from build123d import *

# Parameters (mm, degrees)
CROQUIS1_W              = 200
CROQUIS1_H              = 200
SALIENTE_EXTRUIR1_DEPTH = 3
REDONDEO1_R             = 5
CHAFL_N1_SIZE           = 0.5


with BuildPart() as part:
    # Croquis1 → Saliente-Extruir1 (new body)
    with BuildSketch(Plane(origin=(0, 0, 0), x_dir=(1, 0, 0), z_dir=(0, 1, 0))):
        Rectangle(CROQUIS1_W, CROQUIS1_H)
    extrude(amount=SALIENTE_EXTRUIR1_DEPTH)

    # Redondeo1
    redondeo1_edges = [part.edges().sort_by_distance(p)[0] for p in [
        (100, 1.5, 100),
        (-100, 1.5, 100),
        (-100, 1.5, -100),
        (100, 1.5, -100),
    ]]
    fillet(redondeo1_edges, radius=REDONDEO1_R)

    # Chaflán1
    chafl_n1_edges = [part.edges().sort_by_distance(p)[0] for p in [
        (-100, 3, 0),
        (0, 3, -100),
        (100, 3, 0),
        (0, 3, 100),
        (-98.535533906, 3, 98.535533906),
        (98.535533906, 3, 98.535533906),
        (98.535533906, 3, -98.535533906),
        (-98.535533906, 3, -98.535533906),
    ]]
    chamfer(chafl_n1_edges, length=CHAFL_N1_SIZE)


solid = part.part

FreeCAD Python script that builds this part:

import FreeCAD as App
import Part
import Sketcher
from FreeCAD import Vector


def edges_at(feature, points):
    """Names of the edges that pass closest to the given points."""
    edges = feature.Shape.Edges
    near = lambda p: min(range(len(edges)), key=lambda i: edges[i].distToShape(Part.Vertex(*p))[0])
    return sorted({f"Edge{near(p) + 1}" for p in points})

doc = App.newDocument("Part")
body = doc.addObject("PartDesign::Body", "Body")

sketch1 = body.newObject("Sketcher::SketchObject", "Sketch")
sketch1.AttachmentSupport = (doc.getObject("XZ_Plane"), [""])
sketch1.MapMode = "FlatFace"
sketch1.addGeometry([
    Part.LineSegment(Vector(-100, -100, 0), Vector(-100, 100, 0)),
    Part.LineSegment(Vector(-100, 100, 0), Vector(100, 100, 0)),
    Part.LineSegment(Vector(100, 100, 0), Vector(100, -100, 0)),
    Part.LineSegment(Vector(100, -100, 0), Vector(-100, -100, 0)),
], False)
sketch1.addConstraint([
    Sketcher.Constraint("Coincident", 0, 2, 1, 1),
    Sketcher.Constraint("Coincident", 1, 2, 2, 1),
    Sketcher.Constraint("Coincident", 2, 2, 3, 1),
    Sketcher.Constraint("Coincident", 3, 2, 0, 1),
    Sketcher.Constraint("Vertical", 0),
    Sketcher.Constraint("Horizontal", 1),
    Sketcher.Constraint("Vertical", 2),
    Sketcher.Constraint("Horizontal", 3),
    Sketcher.Constraint("Symmetric", 0, 2, 2, 2, -1, 1),
    Sketcher.Constraint("Equal", 3, 0),
    Sketcher.Constraint("DistanceX", 1, 1, 1, 2, 200.0),
])
pad1 = body.newObject("PartDesign::Pad", "Pad")
pad1.Profile = sketch1
pad1.Length = 3
pad1.Reversed = True
doc.recompute()

fillet = body.newObject("PartDesign::Fillet", "Fillet")
fillet.Base = (pad1, edges_at(pad1, [
    (100, 1.5, 100),
    (-100, 1.5, 100),
    (-100, 1.5, -100),
    (100, 1.5, -100),
]))
fillet.Radius = 5
doc.recompute()

chamfer = body.newObject("PartDesign::Chamfer", "Chamfer")
chamfer.Base = (fillet, edges_at(fillet, [
    (-100, 3, 0),
    (0, 3, -100),
    (100, 3, 0),
    (0, 3, 100),
    (-98.536, 3, 98.536),
    (98.536, 3, 98.536),
    (98.536, 3, -98.536),
    (-98.536, 3, -98.536),
]))
chamfer.Size = 0.5

doc.recompute()
